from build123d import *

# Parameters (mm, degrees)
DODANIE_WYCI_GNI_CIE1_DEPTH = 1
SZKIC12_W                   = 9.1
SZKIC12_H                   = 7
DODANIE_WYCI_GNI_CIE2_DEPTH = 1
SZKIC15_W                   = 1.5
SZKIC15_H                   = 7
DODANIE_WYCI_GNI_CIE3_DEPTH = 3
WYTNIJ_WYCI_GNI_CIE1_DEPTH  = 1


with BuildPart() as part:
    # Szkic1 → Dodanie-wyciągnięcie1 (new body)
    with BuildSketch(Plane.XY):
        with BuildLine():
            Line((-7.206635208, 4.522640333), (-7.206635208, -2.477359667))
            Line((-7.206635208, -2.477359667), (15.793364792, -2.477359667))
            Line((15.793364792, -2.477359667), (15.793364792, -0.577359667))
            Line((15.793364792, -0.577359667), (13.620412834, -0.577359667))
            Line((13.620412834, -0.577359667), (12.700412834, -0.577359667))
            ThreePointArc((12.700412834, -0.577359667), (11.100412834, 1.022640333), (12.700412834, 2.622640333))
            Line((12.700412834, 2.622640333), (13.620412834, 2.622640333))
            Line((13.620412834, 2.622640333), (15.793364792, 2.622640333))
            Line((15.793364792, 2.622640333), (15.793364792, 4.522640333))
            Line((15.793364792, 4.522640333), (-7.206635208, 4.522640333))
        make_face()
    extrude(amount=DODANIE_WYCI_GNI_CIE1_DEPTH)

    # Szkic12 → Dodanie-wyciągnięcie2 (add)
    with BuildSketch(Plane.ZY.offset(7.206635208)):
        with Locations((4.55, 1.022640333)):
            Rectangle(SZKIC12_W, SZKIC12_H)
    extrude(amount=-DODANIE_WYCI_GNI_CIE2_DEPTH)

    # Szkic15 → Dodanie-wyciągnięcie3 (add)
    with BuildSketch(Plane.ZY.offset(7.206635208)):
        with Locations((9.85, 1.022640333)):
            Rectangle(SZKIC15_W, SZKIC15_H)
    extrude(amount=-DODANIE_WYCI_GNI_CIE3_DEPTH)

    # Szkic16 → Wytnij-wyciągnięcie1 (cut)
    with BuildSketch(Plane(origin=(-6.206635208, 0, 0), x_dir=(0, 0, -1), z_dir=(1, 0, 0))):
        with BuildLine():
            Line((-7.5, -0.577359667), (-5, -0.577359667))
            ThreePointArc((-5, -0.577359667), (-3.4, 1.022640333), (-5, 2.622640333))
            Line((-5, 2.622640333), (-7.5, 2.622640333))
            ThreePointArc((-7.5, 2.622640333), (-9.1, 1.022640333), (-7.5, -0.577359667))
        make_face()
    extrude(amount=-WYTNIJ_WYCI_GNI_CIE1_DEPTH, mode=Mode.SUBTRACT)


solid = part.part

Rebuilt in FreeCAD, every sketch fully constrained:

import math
import FreeCAD as App
import Part
import Sketcher
from FreeCAD import Vector
Q = App.Units.Quantity


def add_polygon(sketch, points):
    """Adds a closed chain of lines whose ends are joined by coincident constraints."""
    first, n = sketch.GeometryCount, len(points)
    for a, b in zip(points, points[1:] + points[:1]):
        sketch.addGeometry(Part.LineSegment(App.Vector(*a, 0), App.Vector(*b, 0)), False)
    for i in range(n):
        sketch.addConstraint(Sketcher.Constraint("Coincident", first + i, 2, first + (i + 1) % n, 1))

doc = App.newDocument("Part")
body = doc.addObject("PartDesign::Body", "Body")

# Sketch on XY plane
sketch1 = doc.addObject("Sketcher::SketchObject", "Sketch")
body.addObject(sketch1)
sketch1.AttachmentSupport = (doc.XY_Plane, [""])
sketch1.MapMode = "FlatFace"
sketch1.addGeometry([
    Part.LineSegment(Vector(-7.2, 4.5, 0), Vector(-7.2, -2.5, 0)),  # 0
    Part.LineSegment(Vector(-7.2, -2.5, 0), Vector(15.8, -2.5, 0)),  # 1
    Part.LineSegment(Vector(15.8, -2.5, 0), Vector(15.8, -0.6, 0)),  # 2
    Part.LineSegment(Vector(15.8, -0.6, 0), Vector(12.7, -0.6, 0)),  # 3
    Part.ArcOfCircle(Part.Circle(Vector(12.7, 1, 0), Vector(0, 0, 1), 1.6), math.radians(90), math.radians(270)),  # 4
    Part.LineSegment(Vector(12.7, 2.6, 0), Vector(15.8, 2.6, 0)),  # 5
    Part.LineSegment(Vector(15.8, 2.6, 0), Vector(15.8, 4.5, 0)),  # 6
    Part.LineSegment(Vector(15.8, 4.5, 0), Vector(-7.2, 4.5, 0)),  # 7
], False)
sketch1.addConstraint([
    Sketcher.Constraint("Coincident", 0, 2, 1, 1),
    Sketcher.Constraint("Coincident", 1, 2, 2, 1),
    Sketcher.Constraint("Coincident", 2, 2, 3, 1),
    Sketcher.Constraint("Tangent", 3, 2, 4, 2),
    Sketcher.Constraint("Tangent", 4, 1, 5, 1),
    Sketcher.Constraint("Coincident", 5, 2, 6, 1),
    Sketcher.Constraint("Coincident", 6, 2, 7, 1),
    Sketcher.Constraint("Coincident", 7, 2, 0, 1),
    Sketcher.Constraint("Vertical", 0),
    Sketcher.Constraint("Horizontal", 1),
    Sketcher.Constraint("Vertical", 2),
    Sketcher.Constraint("Horizontal", 3),
    Sketcher.Constraint("Horizontal", 5),
    Sketcher.Constraint("Vertical", 6),
    Sketcher.Constraint("Horizontal", 7),
    Sketcher.Constraint("Vertical", 2, 2, 5, 2),
    Sketcher.Constraint("Equal", 2, 6),
    Sketcher.Constraint("Radius", 4, Q("1.6 mm")),
    Sketcher.Constraint("DistanceX", 1, 1, 1, 2, Q("23 mm")),
    Sketcher.Constraint("DistanceY", 0, 2, 0, 1, Q("7 mm")),
    Sketcher.Constraint("DistanceX", 3, 2, 3, 1, Q("3.092952 mm")),
    Sketcher.Constraint("DistanceY", -1, 1, 4, 3, Q("1.02264 mm")),
    Sketcher.Constraint("DistanceX", -1, 1, 4, 3, Q("12.700413 mm")),
])
pad1 = doc.addObject("PartDesign::Pad", "Pad")
body.addObject(pad1)
pad1.Profile = sketch1
pad1.Length = 1

# Sketch on YZ plane
sketch2 = doc.addObject("Sketcher::SketchObject", "Sketch001")
body.addObject(sketch2)
sketch2.AttachmentSupport = (doc.YZ_Plane, [""])
sketch2.MapMode = "FlatFace"
sketch2.AttachmentOffset = App.Placement(Vector(0, 0, -7.206635), App.Rotation())
add_polygon(sketch2, [(5, 0), (-2, 0), (-2, 9), (5, 9)])  # lines 0-3
sketch2.addConstraint([
    Sketcher.Constraint("Horizontal", 0),
    Sketcher.Constraint("Vertical", 1),
    Sketcher.Constraint("Horizontal", 2),
    Sketcher.Constraint("Vertical", 3),
    Sketcher.Constraint("PointOnObject", 0, 2, -1),
    Sketcher.Constraint("DistanceX", 0, 2, 0, 1, Q("7 mm")),
    Sketcher.Constraint("DistanceY", 1, 1, 1, 2, Q("9.1 mm")),
    Sketcher.Constraint("DistanceX", 0, 2, -1, 1, Q("2.47736 mm")),
])
pad2 = doc.addObject("PartDesign::Pad", "Pad001")
body.addObject(pad2)
pad2.Profile = sketch2
pad2.Length = 1

# Sketch on YZ plane
sketch3 = doc.addObject("Sketcher::SketchObject", "Sketch002")
body.addObject(sketch3)
sketch3.AttachmentSupport = (doc.YZ_Plane, [""])
sketch3.MapMode = "FlatFace"
sketch3.AttachmentOffset = App.Placement(Vector(0, 0, -7.206635), App.Rotation())
add_polygon(sketch3, [(4.5, 9.1), (-2.5, 9.1), (-2.5, 10.6), (4.5, 10.6)])  # lines 0-3
sketch3.addConstraint([
    Sketcher.Constraint("Horizontal", 0),
    Sketcher.Constraint("Vertical", 1),
    Sketcher.Constraint("Horizontal", 2),
    Sketcher.Constraint("Vertical", 3),
    Sketcher.Constraint("DistanceX", 0, 2, 0, 1, Q("7 mm")),
    Sketcher.Constraint("DistanceY", 1, 1, 1, 2, Q("1.5 mm")),
    Sketcher.Constraint("DistanceY", -1, 1, 0, 2, Q("9.1 mm")),
    Sketcher.Constraint("DistanceX", 0, 2, -1, 1, Q("2.47736 mm")),
])
pad3 = doc.addObject("PartDesign::Pad", "Pad002")
body.addObject(pad3)
pad3.Profile = sketch3
pad3.Length = 3

# Sketch on YZ plane
sketch4 = doc.addObject("Sketcher::SketchObject", "Sketch003")
body.addObject(sketch4)
sketch4.AttachmentSupport = (doc.YZ_Plane, [""])
sketch4.MapMode = "FlatFace"
sketch4.AttachmentOffset = App.Placement(Vector(0, 0, -6.206635), App.Rotation())
sketch4.addGeometry([
    Part.LineSegment(Vector(-0.6, 7.5, 0), Vector(-0.6, 5, 0)),
    Part.ArcOfCircle(Part.Circle(Vector(1, 5, 0), Vector(0, 0, 1), 1.6), math.radians(180), math.radians(360)),
    Part.LineSegment(Vector(2.6, 5, 0), Vector(2.6, 7.5, 0)),
    Part.ArcOfCircle(Part.Circle(Vector(1, 7.5, 0), Vector(0, 0, 1), 1.6), math.radians(0), math.radians(180)),
], False)
sketch4.addConstraint([
    Sketcher.Constraint("Tangent", 0, 2, 1, 1),
    Sketcher.Constraint("Tangent", 1, 2, 2, 1),
    Sketcher.Constraint("Tangent", 2, 2, 3, 1),
    Sketcher.Constraint("Tangent", 3, 2, 0, 1),
    Sketcher.Constraint("Vertical", 0),
    Sketcher.Constraint("Vertical", 2),
    Sketcher.Constraint("Radius", 1, Q("1.6 mm")),
    Sketcher.Constraint("DistanceY", 0, 2, 0, 1, Q("2.5 mm")),
    Sketcher.Constraint("DistanceY", -1, 1, 1, 3, Q("5 mm")),
    Sketcher.Constraint("DistanceX", -1, 1, 1, 3, Q("1.02264 mm")),
])
pocket1 = doc.addObject("PartDesign::Pocket", "Pocket")
body.addObject(pocket1)
pocket1.Profile = sketch4
pocket1.Length = 1

doc.recompute()
